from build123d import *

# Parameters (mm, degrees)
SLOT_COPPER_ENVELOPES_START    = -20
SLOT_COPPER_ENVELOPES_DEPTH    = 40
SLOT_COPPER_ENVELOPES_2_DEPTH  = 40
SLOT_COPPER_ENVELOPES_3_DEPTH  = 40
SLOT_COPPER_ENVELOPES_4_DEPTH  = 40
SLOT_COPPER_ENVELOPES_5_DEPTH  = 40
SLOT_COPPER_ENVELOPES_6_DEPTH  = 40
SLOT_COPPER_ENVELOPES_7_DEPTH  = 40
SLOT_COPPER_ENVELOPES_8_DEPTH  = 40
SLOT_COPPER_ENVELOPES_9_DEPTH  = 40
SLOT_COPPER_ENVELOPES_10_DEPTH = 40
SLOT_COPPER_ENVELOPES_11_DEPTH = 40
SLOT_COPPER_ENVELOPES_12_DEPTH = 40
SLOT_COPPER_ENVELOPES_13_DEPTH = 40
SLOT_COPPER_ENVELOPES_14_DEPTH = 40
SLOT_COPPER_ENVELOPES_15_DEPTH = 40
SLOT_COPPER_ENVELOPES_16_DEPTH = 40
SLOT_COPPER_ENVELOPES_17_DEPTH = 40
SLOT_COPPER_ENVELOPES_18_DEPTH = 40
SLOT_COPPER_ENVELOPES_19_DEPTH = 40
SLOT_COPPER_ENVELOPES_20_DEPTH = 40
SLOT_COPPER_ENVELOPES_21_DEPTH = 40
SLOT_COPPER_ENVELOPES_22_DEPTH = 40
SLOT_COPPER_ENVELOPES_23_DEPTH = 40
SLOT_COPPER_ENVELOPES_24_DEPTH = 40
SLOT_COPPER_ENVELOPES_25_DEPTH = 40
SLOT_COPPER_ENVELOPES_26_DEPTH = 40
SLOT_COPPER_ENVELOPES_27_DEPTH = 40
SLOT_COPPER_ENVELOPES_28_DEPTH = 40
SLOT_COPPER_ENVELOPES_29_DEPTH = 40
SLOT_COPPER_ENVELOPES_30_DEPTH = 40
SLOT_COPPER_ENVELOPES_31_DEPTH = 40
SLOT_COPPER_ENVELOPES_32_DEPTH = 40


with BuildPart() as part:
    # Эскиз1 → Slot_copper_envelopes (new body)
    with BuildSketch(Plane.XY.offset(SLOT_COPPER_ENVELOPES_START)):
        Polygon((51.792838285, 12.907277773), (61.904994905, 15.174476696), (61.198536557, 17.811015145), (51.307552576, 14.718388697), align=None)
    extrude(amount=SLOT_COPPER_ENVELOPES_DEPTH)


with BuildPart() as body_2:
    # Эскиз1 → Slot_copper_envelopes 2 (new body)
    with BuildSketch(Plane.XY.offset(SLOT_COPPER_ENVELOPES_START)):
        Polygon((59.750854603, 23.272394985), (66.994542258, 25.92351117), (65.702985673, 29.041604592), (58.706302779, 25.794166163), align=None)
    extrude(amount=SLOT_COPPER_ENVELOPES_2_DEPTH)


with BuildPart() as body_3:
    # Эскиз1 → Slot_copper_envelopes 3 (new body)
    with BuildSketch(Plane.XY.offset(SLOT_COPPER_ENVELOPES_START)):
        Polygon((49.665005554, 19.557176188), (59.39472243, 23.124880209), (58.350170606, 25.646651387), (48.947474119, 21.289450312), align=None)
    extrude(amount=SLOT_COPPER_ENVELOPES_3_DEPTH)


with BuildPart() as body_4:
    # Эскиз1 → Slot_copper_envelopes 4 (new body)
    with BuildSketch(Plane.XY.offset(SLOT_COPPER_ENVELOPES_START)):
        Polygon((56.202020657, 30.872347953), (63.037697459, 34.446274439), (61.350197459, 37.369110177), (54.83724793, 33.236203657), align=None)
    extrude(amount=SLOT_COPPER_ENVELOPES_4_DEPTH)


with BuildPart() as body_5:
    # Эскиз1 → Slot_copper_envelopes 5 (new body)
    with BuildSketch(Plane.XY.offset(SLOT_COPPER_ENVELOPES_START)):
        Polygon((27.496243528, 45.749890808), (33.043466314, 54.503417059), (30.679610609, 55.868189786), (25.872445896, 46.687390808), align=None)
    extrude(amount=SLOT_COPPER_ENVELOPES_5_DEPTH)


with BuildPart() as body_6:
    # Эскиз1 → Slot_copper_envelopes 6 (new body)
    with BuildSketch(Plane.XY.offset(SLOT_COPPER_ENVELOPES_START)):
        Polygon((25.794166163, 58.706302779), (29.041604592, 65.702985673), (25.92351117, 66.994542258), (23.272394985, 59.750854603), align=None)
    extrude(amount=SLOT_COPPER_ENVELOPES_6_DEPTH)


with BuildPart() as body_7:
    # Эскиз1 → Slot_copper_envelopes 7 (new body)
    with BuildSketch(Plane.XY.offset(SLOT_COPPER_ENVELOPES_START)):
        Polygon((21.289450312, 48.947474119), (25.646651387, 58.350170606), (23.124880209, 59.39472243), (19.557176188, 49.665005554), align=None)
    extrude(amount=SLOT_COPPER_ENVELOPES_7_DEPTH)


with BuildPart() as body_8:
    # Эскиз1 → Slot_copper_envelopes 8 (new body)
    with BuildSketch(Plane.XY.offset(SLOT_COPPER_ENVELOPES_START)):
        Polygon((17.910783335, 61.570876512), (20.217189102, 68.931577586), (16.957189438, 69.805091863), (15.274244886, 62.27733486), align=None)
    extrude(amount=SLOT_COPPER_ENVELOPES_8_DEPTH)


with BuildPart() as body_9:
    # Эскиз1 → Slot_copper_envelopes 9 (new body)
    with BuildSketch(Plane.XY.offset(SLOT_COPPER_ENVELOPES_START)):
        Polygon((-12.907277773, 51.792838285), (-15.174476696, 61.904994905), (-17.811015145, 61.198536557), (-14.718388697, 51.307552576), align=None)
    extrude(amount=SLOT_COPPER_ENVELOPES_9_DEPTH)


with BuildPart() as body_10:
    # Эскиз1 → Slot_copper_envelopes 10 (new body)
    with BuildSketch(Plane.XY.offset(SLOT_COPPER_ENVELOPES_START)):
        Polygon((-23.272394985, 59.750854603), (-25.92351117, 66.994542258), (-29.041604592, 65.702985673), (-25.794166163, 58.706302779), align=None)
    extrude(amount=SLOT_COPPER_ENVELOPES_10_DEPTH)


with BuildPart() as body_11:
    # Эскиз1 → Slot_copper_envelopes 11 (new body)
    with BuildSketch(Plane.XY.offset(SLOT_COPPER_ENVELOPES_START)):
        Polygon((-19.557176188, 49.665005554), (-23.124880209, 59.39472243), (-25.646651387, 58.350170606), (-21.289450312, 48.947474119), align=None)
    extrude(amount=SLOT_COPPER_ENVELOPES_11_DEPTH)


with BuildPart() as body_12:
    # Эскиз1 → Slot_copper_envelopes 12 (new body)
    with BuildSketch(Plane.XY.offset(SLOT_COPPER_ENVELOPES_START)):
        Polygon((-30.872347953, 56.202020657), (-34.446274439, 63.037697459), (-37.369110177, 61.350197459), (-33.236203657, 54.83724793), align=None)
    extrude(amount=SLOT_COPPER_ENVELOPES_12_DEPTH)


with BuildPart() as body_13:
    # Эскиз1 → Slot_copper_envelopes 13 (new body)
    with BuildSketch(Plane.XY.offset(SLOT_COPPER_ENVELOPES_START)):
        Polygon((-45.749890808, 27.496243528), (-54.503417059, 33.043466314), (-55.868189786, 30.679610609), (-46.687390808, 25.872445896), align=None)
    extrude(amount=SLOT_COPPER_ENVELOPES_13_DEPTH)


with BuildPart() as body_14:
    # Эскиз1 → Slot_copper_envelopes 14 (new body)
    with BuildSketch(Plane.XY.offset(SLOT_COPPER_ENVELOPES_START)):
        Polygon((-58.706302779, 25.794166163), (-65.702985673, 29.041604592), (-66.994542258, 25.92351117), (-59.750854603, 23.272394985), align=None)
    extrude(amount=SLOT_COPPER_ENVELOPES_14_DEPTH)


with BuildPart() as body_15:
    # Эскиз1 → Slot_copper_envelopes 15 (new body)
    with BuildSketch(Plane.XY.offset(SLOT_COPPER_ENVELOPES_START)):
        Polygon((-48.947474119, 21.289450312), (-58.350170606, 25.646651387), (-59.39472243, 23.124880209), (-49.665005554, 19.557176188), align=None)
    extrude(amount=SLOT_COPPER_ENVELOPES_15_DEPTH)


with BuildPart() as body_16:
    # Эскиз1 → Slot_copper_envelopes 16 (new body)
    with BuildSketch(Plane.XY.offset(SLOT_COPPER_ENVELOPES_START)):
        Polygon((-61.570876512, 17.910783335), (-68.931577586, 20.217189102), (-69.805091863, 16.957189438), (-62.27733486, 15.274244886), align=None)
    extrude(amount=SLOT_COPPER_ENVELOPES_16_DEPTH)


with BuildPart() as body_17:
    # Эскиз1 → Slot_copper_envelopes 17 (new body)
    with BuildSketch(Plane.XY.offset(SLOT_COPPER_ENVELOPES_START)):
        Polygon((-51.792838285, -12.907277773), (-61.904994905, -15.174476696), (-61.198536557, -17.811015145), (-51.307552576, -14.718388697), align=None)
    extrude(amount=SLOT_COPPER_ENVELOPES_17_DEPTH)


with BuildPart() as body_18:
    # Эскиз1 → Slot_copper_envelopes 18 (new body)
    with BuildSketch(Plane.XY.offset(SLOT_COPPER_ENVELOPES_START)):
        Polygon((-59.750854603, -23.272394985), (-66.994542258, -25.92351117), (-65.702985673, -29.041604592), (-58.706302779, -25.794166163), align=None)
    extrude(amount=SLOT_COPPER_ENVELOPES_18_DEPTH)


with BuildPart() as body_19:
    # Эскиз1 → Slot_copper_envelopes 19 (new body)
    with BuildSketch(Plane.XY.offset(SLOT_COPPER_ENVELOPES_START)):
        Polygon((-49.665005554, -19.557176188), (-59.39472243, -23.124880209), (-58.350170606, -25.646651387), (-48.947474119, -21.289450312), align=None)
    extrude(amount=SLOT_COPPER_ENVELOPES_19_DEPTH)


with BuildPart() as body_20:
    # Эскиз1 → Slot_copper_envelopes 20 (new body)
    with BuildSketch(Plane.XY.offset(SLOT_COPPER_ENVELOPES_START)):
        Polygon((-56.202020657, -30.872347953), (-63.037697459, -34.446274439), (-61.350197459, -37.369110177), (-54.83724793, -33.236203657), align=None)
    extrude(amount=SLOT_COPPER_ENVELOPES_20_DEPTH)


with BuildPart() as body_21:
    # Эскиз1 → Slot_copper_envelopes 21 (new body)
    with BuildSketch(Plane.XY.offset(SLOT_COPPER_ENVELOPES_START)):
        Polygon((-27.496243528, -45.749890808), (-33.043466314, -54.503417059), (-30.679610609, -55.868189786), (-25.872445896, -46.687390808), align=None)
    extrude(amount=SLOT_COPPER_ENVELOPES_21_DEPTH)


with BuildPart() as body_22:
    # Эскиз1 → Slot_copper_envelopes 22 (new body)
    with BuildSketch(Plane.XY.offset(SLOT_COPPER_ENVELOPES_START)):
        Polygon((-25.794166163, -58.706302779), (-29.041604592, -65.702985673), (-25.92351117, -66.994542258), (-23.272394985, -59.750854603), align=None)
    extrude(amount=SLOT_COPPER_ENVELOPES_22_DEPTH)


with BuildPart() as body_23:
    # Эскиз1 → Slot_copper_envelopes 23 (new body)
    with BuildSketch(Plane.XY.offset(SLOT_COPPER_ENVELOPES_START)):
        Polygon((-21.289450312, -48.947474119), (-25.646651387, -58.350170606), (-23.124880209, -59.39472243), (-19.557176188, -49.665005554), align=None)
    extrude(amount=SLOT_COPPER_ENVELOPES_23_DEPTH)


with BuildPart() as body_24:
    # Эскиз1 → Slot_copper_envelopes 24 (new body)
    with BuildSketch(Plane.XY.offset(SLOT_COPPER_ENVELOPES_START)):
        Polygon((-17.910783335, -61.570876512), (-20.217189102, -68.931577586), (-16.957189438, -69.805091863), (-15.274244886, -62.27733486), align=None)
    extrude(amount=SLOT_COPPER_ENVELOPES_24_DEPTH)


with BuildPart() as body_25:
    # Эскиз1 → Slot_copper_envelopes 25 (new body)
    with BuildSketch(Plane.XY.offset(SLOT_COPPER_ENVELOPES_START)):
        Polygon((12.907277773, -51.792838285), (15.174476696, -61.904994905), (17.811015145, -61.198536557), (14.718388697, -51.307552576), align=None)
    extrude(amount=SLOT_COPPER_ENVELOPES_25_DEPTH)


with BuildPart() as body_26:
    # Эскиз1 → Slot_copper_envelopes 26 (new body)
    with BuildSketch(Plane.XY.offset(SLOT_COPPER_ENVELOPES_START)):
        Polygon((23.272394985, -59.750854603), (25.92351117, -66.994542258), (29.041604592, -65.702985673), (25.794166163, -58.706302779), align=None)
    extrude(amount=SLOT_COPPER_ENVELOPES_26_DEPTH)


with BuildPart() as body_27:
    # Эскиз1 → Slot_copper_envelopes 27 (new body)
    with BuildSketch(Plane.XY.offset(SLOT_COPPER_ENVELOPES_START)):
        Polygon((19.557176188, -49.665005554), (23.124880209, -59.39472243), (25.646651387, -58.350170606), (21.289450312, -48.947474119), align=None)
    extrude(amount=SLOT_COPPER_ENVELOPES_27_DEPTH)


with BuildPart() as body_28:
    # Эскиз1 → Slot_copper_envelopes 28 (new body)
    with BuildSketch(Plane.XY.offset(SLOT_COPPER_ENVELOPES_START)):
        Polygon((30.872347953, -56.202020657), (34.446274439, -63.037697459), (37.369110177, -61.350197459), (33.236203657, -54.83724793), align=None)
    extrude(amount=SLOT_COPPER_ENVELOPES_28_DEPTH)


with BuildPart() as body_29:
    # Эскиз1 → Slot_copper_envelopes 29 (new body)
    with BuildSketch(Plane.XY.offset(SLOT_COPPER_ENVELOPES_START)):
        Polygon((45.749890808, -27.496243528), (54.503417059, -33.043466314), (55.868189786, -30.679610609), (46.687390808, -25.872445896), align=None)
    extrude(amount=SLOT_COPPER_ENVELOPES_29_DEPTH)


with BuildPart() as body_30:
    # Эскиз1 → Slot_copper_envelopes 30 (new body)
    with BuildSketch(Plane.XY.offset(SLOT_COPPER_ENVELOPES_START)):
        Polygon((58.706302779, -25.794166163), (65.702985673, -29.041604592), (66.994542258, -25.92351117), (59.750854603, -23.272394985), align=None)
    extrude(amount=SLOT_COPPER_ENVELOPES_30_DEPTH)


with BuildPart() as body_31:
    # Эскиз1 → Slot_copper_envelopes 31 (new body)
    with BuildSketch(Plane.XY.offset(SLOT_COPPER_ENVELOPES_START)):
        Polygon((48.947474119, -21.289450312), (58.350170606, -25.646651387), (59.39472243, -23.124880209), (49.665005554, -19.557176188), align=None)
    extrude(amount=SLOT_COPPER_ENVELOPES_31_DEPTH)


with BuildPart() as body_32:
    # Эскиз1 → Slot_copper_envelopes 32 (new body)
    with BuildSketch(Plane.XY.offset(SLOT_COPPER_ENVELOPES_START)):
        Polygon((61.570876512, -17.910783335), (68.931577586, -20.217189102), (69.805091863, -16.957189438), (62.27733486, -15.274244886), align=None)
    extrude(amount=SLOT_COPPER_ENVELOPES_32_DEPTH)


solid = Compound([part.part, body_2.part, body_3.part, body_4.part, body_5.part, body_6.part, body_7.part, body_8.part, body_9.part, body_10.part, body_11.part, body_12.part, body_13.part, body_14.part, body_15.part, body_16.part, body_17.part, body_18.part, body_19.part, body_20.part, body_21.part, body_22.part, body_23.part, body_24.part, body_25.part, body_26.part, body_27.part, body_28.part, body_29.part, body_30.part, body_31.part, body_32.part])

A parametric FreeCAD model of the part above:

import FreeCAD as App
import Part
import Sketcher

V = App.Vector
Q = App.Units.Quantity

doc = App.newDocument("Part")
body = doc.addObject("PartDesign::Body", "Body")

# Sketch on XY plane
sketch1 = body.newObject("Sketcher::SketchObject", "Sketch")
sketch1.AttachmentSupport = (doc.getObject("XY_Plane"), [""])
sketch1.MapMode = "FlatFace"
sketch1.AttachmentOffset = App.Placement(V(0, 0, -20), App.Rotation())
sketch1.addGeometry([
    Part.LineSegment(V(51.8, 12.9, 0), V(61.9, 15.2, 0)),
    Part.LineSegment(V(61.9, 15.2, 0), V(61.2, 17.8, 0)),
    Part.LineSegment(V(61.2, 17.8, 0), V(51.3, 14.7, 0)),
    Part.LineSegment(V(51.3, 14.7, 0), V(51.8, 12.9, 0)),
], False)
sketch1.addConstraint([
    Sketcher.Constraint("Coincident", 0, 2, 1, 1),
    Sketcher.Constraint("Coincident", 1, 2, 2, 1),
    Sketcher.Constraint("Coincident", 2, 2, 3, 1),
    Sketcher.Constraint("Coincident", 3, 2, 0, 1),
    Sketcher.Constraint("Parallel", 1, 3),
    Sketcher.Constraint("Equal", 0, 2),
    Sketcher.Constraint("Angle", 1, Q("105 deg")),
    Sketcher.Constraint("Distance", 3, 1.875),
    Sketcher.Constraint("Distance", 0, 10.363199),
    Sketcher.Constraint("DistanceY", 3, 2, 0, 2, 2.267199),
    Sketcher.Constraint("DistanceY", -1, 1, 2, 2, 14.718389),
    Sketcher.Constraint("DistanceX", -1, 1, 3, 2, 51.792838),
])
pad1 = body.newObject("PartDesign::Pad", "Pad")
pad1.Profile = sketch1
pad1.Length = 40
body2 = doc.addObject("PartDesign::Body", "Body001")

# Sketch on XY plane
sketch2 = body2.newObject("Sketcher::SketchObject", "Sketch001")
sketch2.AttachmentSupport = (doc.getObject("XY_Plane001"), [""])
sketch2.MapMode = "FlatFace"
sketch2.AttachmentOffset = App.Placement(V(0, 0, -20), App.Rotation())
sketch2.addGeometry([
    Part.LineSegment(V(59.8, 23.3, 0), V(67, 25.9, 0)),
    Part.LineSegment(V(67, 25.9, 0), V(65.7, 29, 0)),
    Part.LineSegment(V(65.7, 29, 0), V(58.7, 25.8, 0)),
    Part.LineSegment(V(58.7, 25.8, 0), V(59.8, 23.3, 0)),
], False)
sketch2.addConstraint([
    Sketcher.Constraint("Coincident", 0, 2, 1, 1),
    Sketcher.Constraint("Coincident", 1, 2, 2, 1),
    Sketcher.Constraint("Coincident", 2, 2, 3, 1),
    Sketcher.Constraint("Coincident", 3, 2, 0, 1),
    Sketcher.Constraint("Parallel", 1, 3),
    Sketcher.Constraint("Equal", 0, 2),
    Sketcher.Constraint("Angle", 1, Q("112.5 deg")),
    Sketcher.Constraint("Distance", 1, 3.375),
    Sketcher.Constraint("DistanceY", -1, 1, 0, 2, 25.923511),
    Sketcher.Constraint("DistanceY", 2, 2, 1, 2, 3.247438),
    Sketcher.Constraint("DistanceX", 2, 2, 0, 2, 8.288239),
    Sketcher.Constraint("DistanceX", -1, 1, 0, 2, 66.994542),
])
pad2 = body2.newObject("PartDesign::Pad", "Pad001")
pad2.Profile = sketch2
pad2.Length = 40
body3 = doc.addObject("PartDesign::Body", "Body002")

# Sketch on XY plane
sketch3 = body3.newObject("Sketcher::SketchObject", "Sketch002")
sketch3.AttachmentSupport = (doc.getObject("XY_Plane002"), [""])
sketch3.MapMode = "FlatFace"
sketch3.AttachmentOffset = App.Placement(V(0, 0, -20), App.Rotation())
sketch3.addGeometry([
    Part.LineSegment(V(49.7, 19.6, 0), V(59.4, 23.1, 0)),
    Part.LineSegment(V(59.4, 23.1, 0), V(58.4, 25.6, 0)),
    Part.LineSegment(V(58.4, 25.6, 0), V(48.9, 21.3, 0)),
    Part.LineSegment(V(48.9, 21.3, 0), V(49.7, 19.6, 0)),
], False)
sketch3.addConstraint([
    Sketcher.Constraint("Coincident", 0, 2, 1, 1),
    Sketcher.Constraint("Coincident", 1, 2, 2, 1),
    Sketcher.Constraint("Coincident", 2, 2, 3, 1),
    Sketcher.Constraint("Coincident", 3, 2, 0, 1),
    Sketcher.Constraint("Parallel", 1, 3),
    Sketcher.Constraint("Equal", 0, 2),
    Sketcher.Constraint("Angle", 1, Q("112.5 deg")),
    Sketcher.Constraint("Distance", 3, 1.875),
    Sketcher.Constraint("Distance", 0, 10.363199),
    Sketcher.Constraint("DistanceY", 2, 2, 1, 2, 4.357201),
    Sketcher.Constraint("DistanceY", -1, 1, 0, 2, 23.12488),
    Sketcher.Constraint("DistanceX", -1, 1, 1, 2, 58.350171),
])
pad3 = body3.newObject("PartDesign::Pad", "Pad002")
pad3.Profile = sketch3
pad3.Length = 40
body4 = doc.addObject("PartDesign::Body", "Body003")

# Sketch on XY plane
sketch4 = body4.newObject("Sketcher::SketchObject", "Sketch003")
sketch4.AttachmentSupport = (doc.getObject("XY_Plane003"), [""])
sketch4.MapMode = "FlatFace"
sketch4.AttachmentOffset = App.Placement(V(0, 0, -20), App.Rotation())
sketch4.addGeometry([
    Part.LineSegment(V(56.2, 30.9, 0), V(63, 34.4, 0)),
    Part.LineSegment(V(63, 34.4, 0), V(61.4, 37.4, 0)),
    Part.LineSegment(V(61.4, 37.4, 0), V(54.8, 33.2, 0)),
    Part.LineSegment(V(54.8, 33.2, 0), V(56.2, 30.9, 0)),
], False)
sketch4.addConstraint([
    Sketcher.Constraint("Coincident", 0, 2, 1, 1),
    Sketcher.Constraint("Coincident", 1, 2, 2, 1),
    Sketcher.Constraint("Coincident", 2, 2, 3, 1),
    Sketcher.Constraint("Coincident", 3, 2, 0, 1),
    Sketcher.Constraint("Parallel", 1, 3),
    Sketcher.Constraint("Equal", 0, 2),
    Sketcher.Constraint("Angle", 1, Q("120 deg")),
    Sketcher.Constraint("Distance", 1, 3.375),
    Sketcher.Constraint("DistanceY", -1, 1, 1, 2, 37.36911),
    Sketcher.Constraint("DistanceX", -1, 1, 3, 2, 56.202021),
    Sketcher.Constraint("DistanceX", 2, 2, 1, 2, 6.51295),
    Sketcher.Constraint("DistanceY", 2, 2, 0, 2, 1.210071),
])
pad4 = body4.newObject("PartDesign::Pad", "Pad003")
pad4.Profile = sketch4
pad4.Length = 40
body5 = doc.addObject("PartDesign::Body", "Body004")

# Sketch on XY plane
sketch5 = body5.newObject("Sketcher::SketchObject", "Sketch004")
sketch5.AttachmentSupport = (doc.getObject("XY_Plane004"), [""])
sketch5.MapMode = "FlatFace"
sketch5.AttachmentOffset = App.Placement(V(0, 0, -20), App.Rotation())
sketch5.addGeometry([
    Part.LineSegment(V(27.5, 45.7, 0), V(33, 54.5, 0)),
    Part.LineSegment(V(33, 54.5, 0), V(30.7, 55.9, 0)),
    Part.LineSegment(V(30.7, 55.9, 0), V(25.9, 46.7, 0)),
    Part.LineSegment(V(25.9, 46.7, 0), V(27.5, 45.7, 0)),
], False)
sketch5.addConstraint([
    Sketcher.Constraint("Coincident", 0, 2, 1, 1),
    Sketcher.Constraint("Coincident", 1, 2, 2, 1),
    Sketcher.Constraint("Coincident", 2, 2, 3, 1),
    Sketcher.Constraint("Coincident", 3, 2, 0, 1),
    Sketcher.Constraint("Parallel", 1, 3),
    Sketcher.Constraint("Equal", 0, 2),
    Sketcher.Constraint("Angle", 1, Q("150 deg")),
    Sketcher.Constraint("Distance", 3, 1.875),
    Sketcher.Constraint("Distance", 0, 10.363199),
    Sketcher.Constraint("DistanceY", 2, 2, 1, 2, 9.180799),
    Sketcher.Constraint("DistanceX", -1, 1, 1, 2, 30.679611),
    Sketcher.Constraint("DistanceY", -1, 1, 1, 2, 55.86819),
])
pad5 = body5.newObject("PartDesign::Pad", "Pad004")
pad5.Profile = sketch5
pad5.Length = 40
body6 = doc.addObject("PartDesign::Body", "Body005")

# Sketch on XY plane
sketch6 = body6.newObject("Sketcher::SketchObject", "Sketch005")
sketch6.AttachmentSupport = (doc.getObject("XY_Plane005"), [""])
sketch6.MapMode = "FlatFace"
sketch6.AttachmentOffset = App.Placement(V(0, 0, -20), App.Rotation())
sketch6.addGeometry([
    Part.LineSegment(V(25.8, 58.7, 0), V(29, 65.7, 0)),
    Part.LineSegment(V(29, 65.7, 0), V(25.9, 67, 0)),
    Part.LineSegment(V(25.9, 67, 0), V(23.3, 59.8, 0)),
    Part.LineSegment(V(23.3, 59.8, 0), V(25.8, 58.7, 0)),
], False)
sketch6.addConstraint([
    Sketcher.Constraint("Coincident", 0, 2, 1, 1),
    Sketcher.Constraint("Coincident", 1, 2, 2, 1),
    Sketcher.Constraint("Coincident", 2, 2, 3, 1),
    Sketcher.Constraint("Coincident", 3, 2, 0, 1),
    Sketcher.Constraint("Parallel", 1, 3),
    Sketcher.Constraint("Equal", 0, 2),
    Sketcher.Constraint("Angle", 1, Q("157.5 deg")),
    Sketcher.Constraint("Distance", 1, 3.375),
    Sketcher.Constraint("DistanceX", -1, 1, 1, 2, 25.923511),
    Sketcher.Constraint("DistanceX", 2, 2, 0, 2, 5.76921),
    Sketcher.Constraint("DistanceY", 2, 2, 0, 2, 5.952131),
    Sketcher.Constraint("DistanceY", -1, 1, 0, 2, 65.702986),
])
pad6 = body6.newObject("PartDesign::Pad", "Pad005")
pad6.Profile = sketch6
pad6.Length = 40
body7 = doc.addObject("PartDesign::Body", "Body006")

# Sketch on XY plane
sketch7 = body7.newObject("Sketcher::SketchObject", "Sketch006")
sketch7.AttachmentSupport = (doc.getObject("XY_Plane006"), [""])
sketch7.MapMode = "FlatFace"
sketch7.AttachmentOffset = App.Placement(V(0, 0, -20), App.Rotation())
sketch7.addGeometry([
    Part.LineSegment(V(21.3, 48.9, 0), V(25.6, 58.4, 0)),
    Part.LineSegment(V(25.6, 58.4, 0), V(23.1, 59.4, 0)),
    Part.LineSegment(V(23.1, 59.4, 0), V(19.6, 49.7, 0)),
    Part.LineSegment(V(19.6, 49.7, 0), V(21.3, 48.9, 0)),
], False)
sketch7.addConstraint([
    Sketcher.Constraint("Coincident", 0, 2, 1, 1),
    Sketcher.Constraint("Coincident", 1, 2, 2, 1),
    Sketcher.Constraint("Coincident", 2, 2, 3, 1),
    Sketcher.Constraint("Coincident", 3, 2, 0, 1),
    Sketcher.Constraint("Parallel", 1, 3),
    Sketcher.Constraint("Equal", 0, 2),
    Sketcher.Constraint("Angle", 1, Q("157.5 deg")),
    Sketcher.Constraint("Distance", 3, 1.875),
    Sketcher.Constraint("Distance", 0, 10.363199),
    Sketcher.Constraint("DistanceX", 3, 2, 0, 2, 4.357201),
    Sketcher.Constraint("DistanceX", -1, 1, 0, 2, 25.646651),
    Sketcher.Constraint("DistanceY", -1, 1, 0, 2, 58.350171),
])
pad7 = body7.newObject("PartDesign::Pad", "Pad006")
pad7.Profile = sketch7
pad7.Length = 40
body8 = doc.addObject("PartDesign::Body", "Body007")

# Sketch on XY plane
sketch8 = body8.newObject("Sketcher::SketchObject", "Sketch007")
sketch8.AttachmentSupport = (doc.getObject("XY_Plane007"), [""])
sketch8.MapMode = "FlatFace"
sketch8.AttachmentOffset = App.Placement(V(0, 0, -20), App.Rotation())
sketch8.addGeometry([
    Part.LineSegment(V(17.9, 61.6, 0), V(20.2, 68.9, 0)),
    Part.LineSegment(V(20.2, 68.9, 0), V(17, 69.8, 0)),
    Part.LineSegment(V(17, 69.8, 0), V(15.3, 62.3, 0)),
    Part.LineSegment(V(15.3, 62.3, 0), V(17.9, 61.6, 0)),
], False)
sketch8.addConstraint([
    Sketcher.Constraint("Coincident", 0, 2, 1, 1),
    Sketcher.Constraint("Coincident", 1, 2, 2, 1),
    Sketcher.Constraint("Coincident", 2, 2, 3, 1),
    Sketcher.Constraint("Coincident", 3, 2, 0, 1),
    Sketcher.Constraint("Parallel", 1, 3),
    Sketcher.Constraint("Equal", 0, 2),
    Sketcher.Constraint("Angle", 1, Q("165 deg")),
    Sketcher.Constraint("DistanceX", 1, 2, 0, 2, 3.26),
    Sketcher.Constraint("DistanceY", 3, 2, 0, 2, 7.360701),
    Sketcher.Constraint("DistanceX", -1, 1, 0, 2, 20.217189),
    Sketcher.Constraint("DistanceY", -1, 1, 1, 2, 69.805092),
    Sketcher.Constraint("DistanceX", 2, 2, 3, 2, 2.636538),
])
pad8 = body8.newObject("PartDesign::Pad", "Pad007")
pad8.Profile = sketch8
pad8.Length = 40
body9 = doc.addObject("PartDesign::Body", "Body008")

# Sketch on XY plane
sketch9 = body9.newObject("Sketcher::SketchObject", "Sketch008")
sketch9.AttachmentSupport = (doc.getObject("XY_Plane008"), [""])
sketch9.MapMode = "FlatFace"
sketch9.AttachmentOffset = App.Placement(V(0, 0, -20), App.Rotation())
sketch9.addGeometry([
    Part.LineSegment(V(-12.9, 51.8, 0), V(-15.2, 61.9, 0)),
    Part.LineSegment(V(-15.2, 61.9, 0), V(-17.8, 61.2, 0)),
    Part.LineSegment(V(-17.8, 61.2, 0), V(-14.7, 51.3, 0)),
    Part.LineSegment(V(-14.7, 51.3, 0), V(-12.9, 51.8, 0)),
], False)
sketch9.addConstraint([
    Sketcher.Constraint("Coincident", 0, 2, 1, 1),
    Sketcher.Constraint("Coincident", 1, 2, 2, 1),
    Sketcher.Constraint("Coincident", 2, 2, 3, 1),
    Sketcher.Constraint("Coincident", 3, 2, 0, 1),
    Sketcher.Constraint("Parallel", 1, 3),
    Sketcher.Constraint("Equal", 0, 2),
    Sketcher.Constraint("Angle", 1, Q("-165 deg")),
    Sketcher.Constraint("Distance", 3, 1.875),
    Sketcher.Constraint("Distance", 0, 10.363199),
    Sketcher.Constraint("DistanceX", 0, 2, 3, 2, 2.267199),
    Sketcher.Constraint("DistanceX", 2, 2, -1, 1, 14.718389),
    Sketcher.Constraint("DistanceY", -1, 1, 3, 2, 51.792838),
])
pad9 = body9.newObject("PartDesign::Pad", "Pad008")
pad9.Profile = sketch9
pad9.Length = 40
body10 = doc.addObject("PartDesign::Body", "Body009")

# Sketch on XY plane
sketch10 = body10.newObject("Sketcher::SketchObject", "Sketch009")
sketch10.AttachmentSupport = (doc.getObject("XY_Plane009"), [""])
sketch10.MapMode = "FlatFace"
sketch10.AttachmentOffset = App.Placement(V(0, 0, -20), App.Rotation())
sketch10.addGeometry([
    Part.LineSegment(V(-23.3, 59.8, 0), V(-25.9, 67, 0)),
    Part.LineSegment(V(-25.9, 67, 0), V(-29, 65.7, 0)),
    Part.LineSegment(V(-29, 65.7, 0), V(-25.8, 58.7, 0)),
    Part.LineSegment(V(-25.8, 58.7, 0), V(-23.3, 59.8, 0)),
], False)
sketch10.addConstraint([
    Sketcher.Constraint("Coincident", 0, 2, 1, 1),
    Sketcher.Constraint("Coincident", 1, 2, 2, 1),
    Sketcher.Constraint("Coincident", 2, 2, 3, 1),
    Sketcher.Constraint("Coincident", 3, 2, 0, 1),
    Sketcher.Constraint("Parallel", 1, 3),
    Sketcher.Constraint("Equal", 0, 2),
    Sketcher.Constraint("Angle", 1, Q("-157.5 deg")),
    Sketcher.Constraint("Distance", 1, 3.375),
    Sketcher.Constraint("DistanceX", 0, 2, -1, 1, 25.923511),
    Sketcher.Constraint("DistanceX", 1, 2, 2, 2, 3.247438),
    Sketcher.Constraint("DistanceY", 2, 2, 0, 2, 8.288239),
    Sketcher.Constraint("DistanceY", -1, 1, 0, 2, 66.994542),
])
pad10 = body10.newObject("PartDesign::Pad", "Pad009")
pad10.Profile = sketch10
pad10.Length = 40
body11 = doc.addObject("PartDesign::Body", "Body010")

# Sketch on XY plane
sketch11 = body11.newObject("Sketcher::SketchObject", "Sketch010")
sketch11.AttachmentSupport = (doc.getObject("XY_Plane010"), [""])
sketch11.MapMode = "FlatFace"
sketch11.AttachmentOffset = App.Placement(V(0, 0, -20), App.Rotation())
sketch11.addGeometry([
    Part.LineSegment(V(-19.6, 49.7, 0), V(-23.1, 59.4, 0)),
    Part.LineSegment(V(-23.1, 59.4, 0), V(-25.6, 58.4, 0)),
    Part.LineSegment(V(-25.6, 58.4, 0), V(-21.3, 48.9, 0)),
    Part.LineSegment(V(-21.3, 48.9, 0), V(-19.6, 49.7, 0)),
], False)
sketch11.addConstraint([
    Sketcher.Constraint("Coincident", 0, 2, 1, 1),
    Sketcher.Constraint("Coincident", 1, 2, 2, 1),
    Sketcher.Constraint("Coincident", 2, 2, 3, 1),
    Sketcher.Constraint("Coincident", 3, 2, 0, 1),
    Sketcher.Constraint("Parallel", 1, 3),
    Sketcher.Constraint("Equal", 0, 2),
    Sketcher.Constraint("Angle", 1, Q("-157.5 deg")),
    Sketcher.Constraint("Distance", 3, 1.875),
    Sketcher.Constraint("Distance", 0, 10.363199),
    Sketcher.Constraint("DistanceX", 1, 2, 2, 2, 4.357201),
    Sketcher.Constraint("DistanceX", 0, 2, -1, 1, 23.12488),
    Sketcher.Constraint("DistanceY", -1, 1, 1, 2, 58.350171),
])
pad11 = body11.newObject("PartDesign::Pad", "Pad010")
pad11.Profile = sketch11
pad11.Length = 40
body12 = doc.addObject("PartDesign::Body", "Body011")

# Sketch on XY plane
sketch12 = body12.newObject("Sketcher::SketchObject", "Sketch011")
sketch12.AttachmentSupport = (doc.getObject("XY_Plane011"), [""])
sketch12.MapMode = "FlatFace"
sketch12.AttachmentOffset = App.Placement(V(0, 0, -20), App.Rotation())
sketch12.addGeometry([
    Part.LineSegment(V(-30.9, 56.2, 0), V(-34.4, 63, 0)),
    Part.LineSegment(V(-34.4, 63, 0), V(-37.4, 61.4, 0)),
    Part.LineSegment(V(-37.4, 61.4, 0), V(-33.2, 54.8, 0)),
    Part.LineSegment(V(-33.2, 54.8, 0), V(-30.9, 56.2, 0)),
], False)
sketch12.addConstraint([
    Sketcher.Constraint("Coincident", 0, 2, 1, 1),
    Sketcher.Constraint("Coincident", 1, 2, 2, 1),
    Sketcher.Constraint("Coincident", 2, 2, 3, 1),
    Sketcher.Constraint("Coincident", 3, 2, 0, 1),
    Sketcher.Constraint("Parallel", 1, 3),
    Sketcher.Constraint("Equal", 0, 2),
    Sketcher.Constraint("Angle", 1, Q("-150 deg")),
    Sketcher.Constraint("Distance", 1, 3.375),
    Sketcher.Constraint("DistanceX", 1, 2, -1, 1, 37.36911),
    Sketcher.Constraint("DistanceY", -1, 1, 3, 2, 56.202021),
    Sketcher.Constraint("DistanceY", 2, 2, 1, 2, 6.51295),
    Sketcher.Constraint("DistanceX", 0, 2, 2, 2, 1.210071),
])
pad12 = body12.newObject("PartDesign::Pad", "Pad011")
pad12.Profile = sketch12
pad12.Length = 40
body13 = doc.addObject("PartDesign::Body", "Body012")

# Sketch on XY plane
sketch13 = body13.newObject("Sketcher::SketchObject", "Sketch012")
sketch13.AttachmentSupport = (doc.getObject("XY_Plane012"), [""])
sketch13.MapMode = "FlatFace"
sketch13.AttachmentOffset = App.Placement(V(0, 0, -20), App.Rotation())
sketch13.addGeometry([
    Part.LineSegment(V(-45.7, 27.5, 0), V(-54.5, 33, 0)),
    Part.LineSegment(V(-54.5, 33, 0), V(-55.9, 30.7, 0)),
    Part.LineSegment(V(-55.9, 30.7, 0), V(-46.7, 25.9, 0)),
    Part.LineSegment(V(-46.7, 25.9, 0), V(-45.7, 27.5, 0)),
], False)
sketch13.addConstraint([
    Sketcher.Constraint("Coincident", 0, 2, 1, 1),
    Sketcher.Constraint("Coincident", 1, 2, 2, 1),
    Sketcher.Constraint("Coincident", 2, 2, 3, 1),
    Sketcher.Constraint("Coincident", 3, 2, 0, 1),
    Sketcher.Constraint("Parallel", 1, 3),
    Sketcher.Constraint("Equal", 0, 2),
    Sketcher.Constraint("Angle", 1, Q("-120 deg")),
    Sketcher.Constraint("Distance", 3, 1.875),
    Sketcher.Constraint("Distance", 0, 10.363199),
    Sketcher.Constraint("DistanceX", 1, 2, 2, 2, 9.180799),
    Sketcher.Constraint("DistanceX", 1, 2, -1, 1, 55.86819),
    Sketcher.Constraint("DistanceY", -1, 1, 1, 2, 30.679611),
])
pad13 = body13.newObject("PartDesign::Pad", "Pad012")
pad13.Profile = sketch13
pad13.Length = 40
body14 = doc.addObject("PartDesign::Body", "Body013")

# Sketch on XY plane
sketch14 = body14.newObject("Sketcher::SketchObject", "Sketch013")
sketch14.AttachmentSupport = (doc.getObject("XY_Plane013"), [""])
sketch14.MapMode = "FlatFace"
sketch14.AttachmentOffset = App.Placement(V(0, 0, -20), App.Rotation())
sketch14.addGeometry([
    Part.LineSegment(V(-58.7, 25.8, 0), V(-65.7, 29, 0)),
    Part.LineSegment(V(-65.7, 29, 0), V(-67, 25.9, 0)),
    Part.LineSegment(V(-67, 25.9, 0), V(-59.8, 23.3, 0)),
    Part.LineSegment(V(-59.8, 23.3, 0), V(-58.7, 25.8, 0)),
], False)
sketch14.addConstraint([
    Sketcher.Constraint("Coincident", 0, 2, 1, 1),
    Sketcher.Constraint("Coincident", 1, 2, 2, 1),
    Sketcher.Constraint("Coincident", 2, 2, 3, 1),
    Sketcher.Constraint("Coincident", 3, 2, 0, 1),
    Sketcher.Constraint("Parallel", 1, 3),
    Sketcher.Constraint("Equal", 0, 2),
    Sketcher.Constraint("Angle", 1, Q("-112.5 deg")),
    Sketcher.Constraint("Distance", 1, 3.375),
    Sketcher.Constraint("DistanceY", -1, 1, 1, 2, 25.923511),
    Sketcher.Constraint("DistanceX", 0, 2, 2, 2, 5.952131),
    Sketcher.Constraint("DistanceY", 2, 2, 0, 2, 5.76921),
    Sketcher.Constraint("DistanceX", 0, 2, -1, 1, 65.702986),
])
pad14 = body14.newObject("PartDesign::Pad", "Pad013")
pad14.Profile = sketch14
pad14.Length = 40
body15 = doc.addObject("PartDesign::Body", "Body014")

# Sketch on XY plane
sketch15 = body15.newObject("Sketcher::SketchObject", "Sketch014")
sketch15.AttachmentSupport = (doc.getObject("XY_Plane014"), [""])
sketch15.MapMode = "FlatFace"
sketch15.AttachmentOffset = App.Placement(V(0, 0, -20), App.Rotation())
sketch15.addGeometry([
    Part.LineSegment(V(-48.9, 21.3, 0), V(-58.4, 25.6, 0)),
    Part.LineSegment(V(-58.4, 25.6, 0), V(-59.4, 23.1, 0)),
    Part.LineSegment(V(-59.4, 23.1, 0), V(-49.7, 19.6, 0)),
    Part.LineSegment(V(-49.7, 19.6, 0), V(-48.9, 21.3, 0)),
], False)
sketch15.addConstraint([
    Sketcher.Constraint("Coincident", 0, 2, 1, 1),
    Sketcher.Constraint("Coincident", 1, 2, 2, 1),
    Sketcher.Constraint("Coincident", 2, 2, 3, 1),
    Sketcher.Constraint("Coincident", 3, 2, 0, 1),
    Sketcher.Constraint("Parallel", 1, 3),
    Sketcher.Constraint("Equal", 0, 2),
    Sketcher.Constraint("Angle", 1, Q("-112.5 deg")),
    Sketcher.Constraint("Distance", 3, 1.875),
    Sketcher.Constraint("Distance", 0, 10.363199),
    Sketcher.Constraint("DistanceY", 3, 2, 0, 2, 4.357201),
    Sketcher.Constraint("DistanceX", 0, 2, -1, 1, 58.350171),
    Sketcher.Constraint("DistanceY", -1, 1, 0, 2, 25.646651),
])
pad15 = body15.newObject("PartDesign::Pad", "Pad014")
pad15.Profile = sketch15
pad15.Length = 40
body16 = doc.addObject("PartDesign::Body", "Body015")

# Sketch on XY plane
sketch16 = body16.newObject("Sketcher::SketchObject", "Sketch015")
sketch16.AttachmentSupport = (doc.getObject("XY_Plane015"), [""])
sketch16.MapMode = "FlatFace"
sketch16.AttachmentOffset = App.Placement(V(0, 0, -20), App.Rotation())
sketch16.addGeometry([
    Part.LineSegment(V(-61.6, 17.9, 0), V(-68.9, 20.2, 0)),
    Part.LineSegment(V(-68.9, 20.2, 0), V(-69.8, 17, 0)),
    Part.LineSegment(V(-69.8, 17, 0), V(-62.3, 15.3, 0)),
    Part.LineSegment(V(-62.3, 15.3, 0), V(-61.6, 17.9, 0)),
], False)
sketch16.addConstraint([
    Sketcher.Constraint("Coincident", 0, 2, 1, 1),
    Sketcher.Constraint("Coincident", 1, 2, 2, 1),
    Sketcher.Constraint("Coincident", 2, 2, 3, 1),
    Sketcher.Constraint("Coincident", 3, 2, 0, 1),
    Sketcher.Constraint("Parallel", 1, 3),
    Sketcher.Constraint("Equal", 0, 2),
    Sketcher.Constraint("Angle", 1, Q("-105 deg")),
    Sketcher.Constraint("DistanceY", 1, 2, 0, 2, 3.26),
    Sketcher.Constraint("DistanceX", 0, 2, 3, 2, 7.360701),
    Sketcher.Constraint("DistanceY", -1, 1, 0, 2, 20.217189),
    Sketcher.Constraint("DistanceX", 1, 2, -1, 1, 69.805092),
    Sketcher.Constraint("DistanceX", 2, 2, 3, 2, 0.706458),
])
pad16 = body16.newObject("PartDesign::Pad", "Pad015")
pad16.Profile = sketch16
pad16.Length = 40
body17 = doc.addObject("PartDesign::Body", "Body016")

# Sketch on XY plane
sketch17 = body17.newObject("Sketcher::SketchObject", "Sketch016")
sketch17.AttachmentSupport = (doc.getObject("XY_Plane016"), [""])
sketch17.MapMode = "FlatFace"
sketch17.AttachmentOffset = App.Placement(V(0, 0, -20), App.Rotation())
sketch17.addGeometry([
    Part.LineSegment(V(-51.8, -12.9, 0), V(-61.9, -15.2, 0)),
    Part.LineSegment(V(-61.9, -15.2, 0), V(-61.2, -17.8, 0)),
    Part.LineSegment(V(-61.2, -17.8, 0), V(-51.3, -14.7, 0)),
    Part.LineSegment(V(-51.3, -14.7, 0), V(-51.8, -12.9, 0)),
], False)
sketch17.addConstraint([
    Sketcher.Constraint("Coincident", 0, 2, 1, 1),
    Sketcher.Constraint("Coincident", 1, 2, 2, 1),
    Sketcher.Constraint("Coincident", 2, 2, 3, 1),
    Sketcher.Constraint("Coincident", 3, 2, 0, 1),
    Sketcher.Constraint("Parallel", 1, 3),
    Sketcher.Constraint("Equal", 0, 2),
    Sketcher.Constraint("Angle", 1, Q("-75 deg")),
    Sketcher.Constraint("Distance", 3, 1.875),
    Sketcher.Constraint("Distance", 0, 10.363199),
    Sketcher.Constraint("DistanceY", 0, 2, 3, 2, 2.267199),
    Sketcher.Constraint("DistanceY", 2, 2, -1, 1, 14.718389),
    Sketcher.Constraint("DistanceX", 3, 2, -1, 1, 51.792838),
])
pad17 = body17.newObject("PartDesign::Pad", "Pad016")
pad17.Profile = sketch17
pad17.Length = 40
body18 = doc.addObject("PartDesign::Body", "Body017")

# Sketch on XY plane
sketch18 = body18.newObject("Sketcher::SketchObject", "Sketch017")
sketch18.AttachmentSupport = (doc.getObject("XY_Plane017"), [""])
sketch18.MapMode = "FlatFace"
sketch18.AttachmentOffset = App.Placement(V(0, 0, -20), App.Rotation())
sketch18.addGeometry([
    Part.LineSegment(V(-59.8, -23.3, 0), V(-67, -25.9, 0)),
    Part.LineSegment(V(-67, -25.9, 0), V(-65.7, -29, 0)),
    Part.LineSegment(V(-65.7, -29, 0), V(-58.7, -25.8, 0)),
    Part.LineSegment(V(-58.7, -25.8, 0), V(-59.8, -23.3, 0)),
], False)
sketch18.addConstraint([
    Sketcher.Constraint("Coincident", 0, 2, 1, 1),
    Sketcher.Constraint("Coincident", 1, 2, 2, 1),
    Sketcher.Constraint("Coincident", 2, 2, 3, 1),
    Sketcher.Constraint("Coincident", 3, 2, 0, 1),
    Sketcher.Constraint("Parallel", 1, 3),
    Sketcher.Constraint("Equal", 0, 2),
    Sketcher.Constraint("Angle", 1, Q("-67.5 deg")),
    Sketcher.Constraint("Distance", 1, 3.375),
    Sketcher.Constraint("DistanceY", 0, 2, -1, 1, 25.923511),
    Sketcher.Constraint("DistanceY", 1, 2, 2, 2, 3.247438),
    Sketcher.Constraint("DistanceX", 0, 2, 2, 2, 8.288239),
    Sketcher.Constraint("DistanceX", 0, 2, -1, 1, 66.994542),
])
pad18 = body18.newObject("PartDesign::Pad", "Pad017")
pad18.Profile = sketch18
pad18.Length = 40
body19 = doc.addObject("PartDesign::Body", "Body018")

# Sketch on XY plane
sketch19 = body19.newObject("Sketcher::SketchObject", "Sketch018")
sketch19.AttachmentSupport = (doc.getObject("XY_Plane018"), [""])
sketch19.MapMode = "FlatFace"
sketch19.AttachmentOffset = App.Placement(V(0, 0, -20), App.Rotation())
sketch19.addGeometry([
    Part.LineSegment(V(-49.7, -19.6, 0), V(-59.4, -23.1, 0)),
    Part.LineSegment(V(-59.4, -23.1, 0), V(-58.4, -25.6, 0)),
    Part.LineSegment(V(-58.4, -25.6, 0), V(-48.9, -21.3, 0)),
    Part.LineSegment(V(-48.9, -21.3, 0), V(-49.7, -19.6, 0)),
], False)
sketch19.addConstraint([
    Sketcher.Constraint("Coincident", 0, 2, 1, 1),
    Sketcher.Constraint("Coincident", 1, 2, 2, 1),
    Sketcher.Constraint("Coincident", 2, 2, 3, 1),
    Sketcher.Constraint("Coincident", 3, 2, 0, 1),
    Sketcher.Constraint("Parallel", 1, 3),
    Sketcher.Constraint("Equal", 0, 2),
    Sketcher.Constraint("Angle", 1, Q("-67.5 deg")),
    Sketcher.Constraint("Distance", 3, 1.875),
    Sketcher.Constraint("Distance", 0, 10.363199),
    Sketcher.Constraint("DistanceY", 1, 2, 2, 2, 4.357201),
    Sketcher.Constraint("DistanceY", 0, 2, -1, 1, 23.12488),
    Sketcher.Constraint("DistanceX", 1, 2, -1, 1, 58.350171),
])
pad19 = body19.newObject("PartDesign::Pad", "Pad018")
pad19.Profile = sketch19
pad19.Length = 40
body20 = doc.addObject("PartDesign::Body", "Body019")

# Sketch on XY plane
sketch20 = body20.newObject("Sketcher::SketchObject", "Sketch019")
sketch20.AttachmentSupport = (doc.getObject("XY_Plane019"), [""])
sketch20.MapMode = "FlatFace"
sketch20.AttachmentOffset = App.Placement(V(0, 0, -20), App.Rotation())
sketch20.addGeometry([
    Part.LineSegment(V(-56.2, -30.9, 0), V(-63, -34.4, 0)),
    Part.LineSegment(V(-63, -34.4, 0), V(-61.4, -37.4, 0)),
    Part.LineSegment(V(-61.4, -37.4, 0), V(-54.8, -33.2, 0)),
    Part.LineSegment(V(-54.8, -33.2, 0), V(-56.2, -30.9, 0)),
], False)
sketch20.addConstraint([
    Sketcher.Constraint("Coincident", 0, 2, 1, 1),
    Sketcher.Constraint("Coincident", 1, 2, 2, 1),
    Sketcher.Constraint("Coincident", 2, 2, 3, 1),
    Sketcher.Constraint("Coincident", 3, 2, 0, 1),
    Sketcher.Constraint("Parallel", 1, 3),
    Sketcher.Constraint("Equal", 0, 2),
    Sketcher.Constraint("Angle", 1, Q("-60 deg")),
    Sketcher.Constraint("Distance", 1, 3.375),
    Sketcher.Constraint("DistanceY", 1, 2, -1, 1, 37.36911),
    Sketcher.Constraint("DistanceX", 3, 2, -1, 1, 56.202021),
    Sketcher.Constraint("DistanceX", 1, 2, 2, 2, 6.51295),
    Sketcher.Constraint("DistanceY", 0, 2, 2, 2, 1.210071),
])
pad20 = body20.newObject("PartDesign::Pad", "Pad019")
pad20.Profile = sketch20
pad20.Length = 40
body21 = doc.addObject("PartDesign::Body", "Body020")

# Sketch on XY plane
sketch21 = body21.newObject("Sketcher::SketchObject", "Sketch020")
sketch21.AttachmentSupport = (doc.getObject("XY_Plane020"), [""])
sketch21.MapMode = "FlatFace"
sketch21.AttachmentOffset = App.Placement(V(0, 0, -20), App.Rotation())
sketch21.addGeometry([
    Part.LineSegment(V(-27.5, -45.7, 0), V(-33, -54.5, 0)),
    Part.LineSegment(V(-33, -54.5, 0), V(-30.7, -55.9, 0)),
    Part.LineSegment(V(-30.7, -55.9, 0), V(-25.9, -46.7, 0)),
    Part.LineSegment(V(-25.9, -46.7, 0), V(-27.5, -45.7, 0)),
], False)
sketch21.addConstraint([
    Sketcher.Constraint("Coincident", 0, 2, 1, 1),
    Sketcher.Constraint("Coincident", 1, 2, 2, 1),
    Sketcher.Constraint("Coincident", 2, 2, 3, 1),
    Sketcher.Constraint("Coincident", 3, 2, 0, 1),
    Sketcher.Constraint("Parallel", 1, 3),
    Sketcher.Constraint("Equal", 0, 2),
    Sketcher.Constraint("Angle", 1, Q("-30 deg")),
    Sketcher.Constraint("Distance", 3, 1.875),
    Sketcher.Constraint("Distance", 0, 10.363199),
    Sketcher.Constraint("DistanceY", 1, 2, 2, 2, 9.180799),
    Sketcher.Constraint("DistanceX", 1, 2, -1, 1, 30.679611),
    Sketcher.Constraint("DistanceY", 1, 2, -1, 1, 55.86819),
])
pad21 = body21.newObject("PartDesign::Pad", "Pad020")
pad21.Profile = sketch21
pad21.Length = 40
body22 = doc.addObject("PartDesign::Body", "Body021")

# Sketch on XY plane
sketch22 = body22.newObject("Sketcher::SketchObject", "Sketch021")
sketch22.AttachmentSupport = (doc.getObject("XY_Plane021"), [""])
sketch22.MapMode = "FlatFace"
sketch22.AttachmentOffset = App.Placement(V(0, 0, -20), App.Rotation())
sketch22.addGeometry([
    Part.LineSegment(V(-25.8, -58.7, 0), V(-29, -65.7, 0)),
    Part.LineSegment(V(-29, -65.7, 0), V(-25.9, -67, 0)),
    Part.LineSegment(V(-25.9, -67, 0), V(-23.3, -59.8, 0)),
    Part.LineSegment(V(-23.3, -59.8, 0), V(-25.8, -58.7, 0)),
], False)
sketch22.addConstraint([
    Sketcher.Constraint("Coincident", 0, 2, 1, 1),
    Sketcher.Constraint("Coincident", 1, 2, 2, 1),
    Sketcher.Constraint("Coincident", 2, 2, 3, 1),
    Sketcher.Constraint("Coincident", 3, 2, 0, 1),
    Sketcher.Constraint("Parallel", 1, 3),
    Sketcher.Constraint("Equal", 0, 2),
    Sketcher.Constraint("Angle", 1, Q("-22.5 deg")),
    Sketcher.Constraint("Distance", 1, 3.375),
    Sketcher.Constraint("DistanceX", 1, 2, -1, 1, 25.923511),
    Sketcher.Constraint("DistanceX", 0, 2, 2, 2, 5.76921),
    Sketcher.Constraint("DistanceY", 0, 2, 2, 2, 5.952131),
    Sketcher.Constraint("DistanceY", 0, 2, -1, 1, 65.702986),
])
pad22 = body22.newObject("PartDesign::Pad", "Pad021")
pad22.Profile = sketch22
pad22.Length = 40
body23 = doc.addObject("PartDesign::Body", "Body022")

# Sketch on XY plane
sketch23 = body23.newObject("Sketcher::SketchObject", "Sketch022")
sketch23.AttachmentSupport = (doc.getObject("XY_Plane022"), [""])
sketch23.MapMode = "FlatFace"
sketch23.AttachmentOffset = App.Placement(V(0, 0, -20), App.Rotation())
sketch23.addGeometry([
    Part.LineSegment(V(-21.3, -48.9, 0), V(-25.6, -58.4, 0)),
    Part.LineSegment(V(-25.6, -58.4, 0), V(-23.1, -59.4, 0)),
    Part.LineSegment(V(-23.1, -59.4, 0), V(-19.6, -49.7, 0)),
    Part.LineSegment(V(-19.6, -49.7, 0), V(-21.3, -48.9, 0)),
], False)
sketch23.addConstraint([
    Sketcher.Constraint("Coincident", 0, 2, 1, 1),
    Sketcher.Constraint("Coincident", 1, 2, 2, 1),
    Sketcher.Constraint("Coincident", 2, 2, 3, 1),
    Sketcher.Constraint("Coincident", 3, 2, 0, 1),
    Sketcher.Constraint("Parallel", 1, 3),
    Sketcher.Constraint("Equal", 0, 2),
    Sketcher.Constraint("Angle", 1, Q("-22.5 deg")),
    Sketcher.Constraint("Distance", 3, 1.875),
    Sketcher.Constraint("Distance", 0, 10.363199),
    Sketcher.Constraint("DistanceX", 0, 2, 3, 2, 4.357201),
    Sketcher.Constraint("DistanceX", 0, 2, -1, 1, 25.646651),
    Sketcher.Constraint("DistanceY", 0, 2, -1, 1, 58.350171),
])
pad23 = body23.newObject("PartDesign::Pad", "Pad022")
pad23.Profile = sketch23
pad23.Length = 40
body24 = doc.addObject("PartDesign::Body", "Body023")

# Sketch on XY plane
sketch24 = body24.newObject("Sketcher::SketchObject", "Sketch023")
sketch24.AttachmentSupport = (doc.getObject("XY_Plane023"), [""])
sketch24.MapMode = "FlatFace"
sketch24.AttachmentOffset = App.Placement(V(0, 0, -20), App.Rotation())
sketch24.addGeometry([
    Part.LineSegment(V(-17.9, -61.6, 0), V(-20.2, -68.9, 0)),
    Part.LineSegment(V(-20.2, -68.9, 0), V(-17, -69.8, 0)),
    Part.LineSegment(V(-17, -69.8, 0), V(-15.3, -62.3, 0)),
    Part.LineSegment(V(-15.3, -62.3, 0), V(-17.9, -61.6, 0)),
], False)
sketch24.addConstraint([
    Sketcher.Constraint("Coincident", 0, 2, 1, 1),
    Sketcher.Constraint("Coincident", 1, 2, 2, 1),
    Sketcher.Constraint("Coincident", 2, 2, 3, 1),
    Sketcher.Constraint("Coincident", 3, 2, 0, 1),
    Sketcher.Constraint("Parallel", 1, 3),
    Sketcher.Constraint("Equal", 0, 2),
    Sketcher.Constraint("Angle", 1, Q("-15 deg")),
    Sketcher.Constraint("DistanceX", 0, 2, 1, 2, 3.26),
    Sketcher.Constraint("DistanceY", 0, 2, 3, 2, 7.360701),
    Sketcher.Constraint("DistanceX", 0, 2, -1, 1, 20.217189),
    Sketcher.Constraint("DistanceY", 1, 2, -1, 1, 69.805092),
    Sketcher.Constraint("DistanceX", 3, 2, 2, 2, 2.636538),
])
pad24 = body24.newObject("PartDesign::Pad", "Pad023")
pad24.Profile = sketch24
pad24.Length = 40
body25 = doc.addObject("PartDesign::Body", "Body024")

# Sketch on XY plane
sketch25 = body25.newObject("Sketcher::SketchObject", "Sketch024")
sketch25.AttachmentSupport = (doc.getObject("XY_Plane024"), [""])
sketch25.MapMode = "FlatFace"
sketch25.AttachmentOffset = App.Placement(V(0, 0, -20), App.Rotation())
sketch25.addGeometry([
    Part.LineSegment(V(12.9, -51.8, 0), V(15.2, -61.9, 0)),
    Part.LineSegment(V(15.2, -61.9, 0), V(17.8, -61.2, 0)),
    Part.LineSegment(V(17.8, -61.2, 0), V(14.7, -51.3, 0)),
    Part.LineSegment(V(14.7, -51.3, 0), V(12.9, -51.8, 0)),
], False)
sketch25.addConstraint([
    Sketcher.Constraint("Coincident", 0, 2, 1, 1),
    Sketcher.Constraint("Coincident", 1, 2, 2, 1),
    Sketcher.Constraint("Coincident", 2, 2, 3, 1),
    Sketcher.Constraint("Coincident", 3, 2, 0, 1),
    Sketcher.Constraint("Parallel", 1, 3),
    Sketcher.Constraint("Equal", 0, 2),
    Sketcher.Constraint("Angle", 1, Q("15 deg")),
    Sketcher.Constraint("Distance", 3, 1.875),
    Sketcher.Constraint("Distance", 0, 10.363199),
    Sketcher.Constraint("DistanceX", 3, 2, 0, 2, 2.267199),
    Sketcher.Constraint("DistanceX", -1, 1, 2, 2, 14.718389),
    Sketcher.Constraint("DistanceY", 3, 2, -1, 1, 51.792838),
])
pad25 = body25.newObject("PartDesign::Pad", "Pad024")
pad25.Profile = sketch25
pad25.Length = 40
body26 = doc.addObject("PartDesign::Body", "Body025")

# Sketch on XY plane
sketch26 = body26.newObject("Sketcher::SketchObject", "Sketch025")
sketch26.AttachmentSupport = (doc.getObject("XY_Plane025"), [""])
sketch26.MapMode = "FlatFace"
sketch26.AttachmentOffset = App.Placement(V(0, 0, -20), App.Rotation())
sketch26.addGeometry([
    Part.LineSegment(V(23.3, -59.8, 0), V(25.9, -67, 0)),
    Part.LineSegment(V(25.9, -67, 0), V(29, -65.7, 0)),
    Part.LineSegment(V(29, -65.7, 0), V(25.8, -58.7, 0)),
    Part.LineSegment(V(25.8, -58.7, 0), V(23.3, -59.8, 0)),
], False)
sketch26.addConstraint([
    Sketcher.Constraint("Coincident", 0, 2, 1, 1),
    Sketcher.Constraint("Coincident", 1, 2, 2, 1),
    Sketcher.Constraint("Coincident", 2, 2, 3, 1),
    Sketcher.Constraint("Coincident", 3, 2, 0, 1),
    Sketcher.Constraint("Parallel", 1, 3),
    Sketcher.Constraint("Equal", 0, 2),
    Sketcher.Constraint("Angle", 1, Q("22.5 deg")),
    Sketcher.Constraint("Distance", 1, 3.375),
    Sketcher.Constraint("DistanceX", -1, 1, 0, 2, 25.923511),
    Sketcher.Constraint("DistanceX", 2, 2, 1, 2, 3.247438),
    Sketcher.Constraint("DistanceY", 0, 2, 2, 2, 8.288239),
    Sketcher.Constraint("DistanceY", 0, 2, -1, 1, 66.994542),
])
pad26 = body26.newObject("PartDesign::Pad", "Pad025")
pad26.Profile = sketch26
pad26.Length = 40
body27 = doc.addObject("PartDesign::Body", "Body026")

# Sketch on XY plane
sketch27 = body27.newObject("Sketcher::SketchObject", "Sketch026")
sketch27.AttachmentSupport = (doc.getObject("XY_Plane026"), [""])
sketch27.MapMode = "FlatFace"
sketch27.AttachmentOffset = App.Placement(V(0, 0, -20), App.Rotation())
sketch27.addGeometry([
    Part.LineSegment(V(19.6, -49.7, 0), V(23.1, -59.4, 0)),
    Part.LineSegment(V(23.1, -59.4, 0), V(25.6, -58.4, 0)),
    Part.LineSegment(V(25.6, -58.4, 0), V(21.3, -48.9, 0)),
    Part.LineSegment(V(21.3, -48.9, 0), V(19.6, -49.7, 0)),
], False)
sketch27.addConstraint([
    Sketcher.Constraint("Coincident", 0, 2, 1, 1),
    Sketcher.Constraint("Coincident", 1, 2, 2, 1),
    Sketcher.Constraint("Coincident", 2, 2, 3, 1),
    Sketcher.Constraint("Coincident", 3, 2, 0, 1),
    Sketcher.Constraint("Parallel", 1, 3),
    Sketcher.Constraint("Equal", 0, 2),
    Sketcher.Constraint("Angle", 1, Q("22.5 deg")),
    Sketcher.Constraint("Distance", 3, 1.875),
    Sketcher.Constraint("Distance", 0, 10.363199),
    Sketcher.Constraint("DistanceX", 2, 2, 1, 2, 4.357201),
    Sketcher.Constraint("DistanceX", -1, 1, 0, 2, 23.12488),
    Sketcher.Constraint("DistanceY", 1, 2, -1, 1, 58.350171),
])
pad27 = body27.newObject("PartDesign::Pad", "Pad026")
pad27.Profile = sketch27
pad27.Length = 40
body28 = doc.addObject("PartDesign::Body", "Body027")

# Sketch on XY plane
sketch28 = body28.newObject("Sketcher::SketchObject", "Sketch027")
sketch28.AttachmentSupport = (doc.getObject("XY_Plane027"), [""])
sketch28.MapMode = "FlatFace"
sketch28.AttachmentOffset = App.Placement(V(0, 0, -20), App.Rotation())
sketch28.addGeometry([
    Part.LineSegment(V(30.9, -56.2, 0), V(34.4, -63, 0)),
    Part.LineSegment(V(34.4, -63, 0), V(37.4, -61.4, 0)),
    Part.LineSegment(V(37.4, -61.4, 0), V(33.2, -54.8, 0)),
    Part.LineSegment(V(33.2, -54.8, 0), V(30.9, -56.2, 0)),
], False)
sketch28.addConstraint([
    Sketcher.Constraint("Coincident", 0, 2, 1, 1),
    Sketcher.Constraint("Coincident", 1, 2, 2, 1),
    Sketcher.Constraint("Coincident", 2, 2, 3, 1),
    Sketcher.Constraint("Coincident", 3, 2, 0, 1),
    Sketcher.Constraint("Parallel", 1, 3),
    Sketcher.Constraint("Equal", 0, 2),
    Sketcher.Constraint("Angle", 1, Q("30 deg")),
    Sketcher.Constraint("Distance", 1, 3.375),
    Sketcher.Constraint("DistanceX", -1, 1, 1, 2, 37.36911),
    Sketcher.Constraint("DistanceY", 3, 2, -1, 1, 56.202021),
    Sketcher.Constraint("DistanceY", 1, 2, 2, 2, 6.51295),
    Sketcher.Constraint("DistanceX", 2, 2, 0, 2, 1.210071),
])
pad28 = body28.newObject("PartDesign::Pad", "Pad027")
pad28.Profile = sketch28
pad28.Length = 40
body29 = doc.addObject("PartDesign::Body", "Body028")

# Sketch on XY plane
sketch29 = body29.newObject("Sketcher::SketchObject", "Sketch028")
sketch29.AttachmentSupport = (doc.getObject("XY_Plane028"), [""])
sketch29.MapMode = "FlatFace"
sketch29.AttachmentOffset = App.Placement(V(0, 0, -20), App.Rotation())
sketch29.addGeometry([
    Part.LineSegment(V(45.7, -27.5, 0), V(54.5, -33, 0)),
    Part.LineSegment(V(54.5, -33, 0), V(55.9, -30.7, 0)),
    Part.LineSegment(V(55.9, -30.7, 0), V(46.7, -25.9, 0)),
    Part.LineSegment(V(46.7, -25.9, 0), V(45.7, -27.5, 0)),
], False)
sketch29.addConstraint([
    Sketcher.Constraint("Coincident", 0, 2, 1, 1),
    Sketcher.Constraint("Coincident", 1, 2, 2, 1),
    Sketcher.Constraint("Coincident", 2, 2, 3, 1),
    Sketcher.Constraint("Coincident", 3, 2, 0, 1),
    Sketcher.Constraint("Parallel", 1, 3),
    Sketcher.Constraint("Equal", 0, 2),
    Sketcher.Constraint("Angle", 1, Q("60 deg")),
    Sketcher.Constraint("Distance", 3, 1.875),
    Sketcher.Constraint("Distance", 0, 10.363199),
    Sketcher.Constraint("DistanceX", 2, 2, 1, 2, 9.180799),
    Sketcher.Constraint("DistanceX", -1, 1, 1, 2, 55.86819),
    Sketcher.Constraint("DistanceY", 1, 2, -1, 1, 30.679611),
])
pad29 = body29.newObject("PartDesign::Pad", "Pad028")
pad29.Profile = sketch29
pad29.Length = 40
body30 = doc.addObject("PartDesign::Body", "Body029")

# Sketch on XY plane
sketch30 = body30.newObject("Sketcher::SketchObject", "Sketch029")
sketch30.AttachmentSupport = (doc.getObject("XY_Plane029"), [""])
sketch30.MapMode = "FlatFace"
sketch30.AttachmentOffset = App.Placement(V(0, 0, -20), App.Rotation())
sketch30.addGeometry([
    Part.LineSegment(V(58.7, -25.8, 0), V(65.7, -29, 0)),
    Part.LineSegment(V(65.7, -29, 0), V(67, -25.9, 0)),
    Part.LineSegment(V(67, -25.9, 0), V(59.8, -23.3, 0)),
    Part.LineSegment(V(59.8, -23.3, 0), V(58.7, -25.8, 0)),
], False)
sketch30.addConstraint([
    Sketcher.Constraint("Coincident", 0, 2, 1, 1),
    Sketcher.Constraint("Coincident", 1, 2, 2, 1),
    Sketcher.Constraint("Coincident", 2, 2, 3, 1),
    Sketcher.Constraint("Coincident", 3, 2, 0, 1),
    Sketcher.Constraint("Parallel", 1, 3),
    Sketcher.Constraint("Equal", 0, 2),
    Sketcher.Constraint("Angle", 1, Q("67.5 deg")),
    Sketcher.Constraint("Distance", 1, 3.375),
    Sketcher.Constraint("DistanceY", 1, 2, -1, 1, 25.923511),
    Sketcher.Constraint("DistanceX", 2, 2, 0, 2, 5.952131),
    Sketcher.Constraint("DistanceY", 0, 2, 2, 2, 5.76921),
    Sketcher.Constraint("DistanceX", -1, 1, 0, 2, 65.702986),
])
pad30 = body30.newObject("PartDesign::Pad", "Pad029")
pad30.Profile = sketch30
pad30.Length = 40
body31 = doc.addObject("PartDesign::Body", "Body030")

# Sketch on XY plane
sketch31 = body31.newObject("Sketcher::SketchObject", "Sketch030")
sketch31.AttachmentSupport = (doc.getObject("XY_Plane030"), [""])
sketch31.MapMode = "FlatFace"
sketch31.AttachmentOffset = App.Placement(V(0, 0, -20), App.Rotation())
sketch31.addGeometry([
    Part.LineSegment(V(48.9, -21.3, 0), V(58.4, -25.6, 0)),
    Part.LineSegment(V(58.4, -25.6, 0), V(59.4, -23.1, 0)),
    Part.LineSegment(V(59.4, -23.1, 0), V(49.7, -19.6, 0)),
    Part.LineSegment(V(49.7, -19.6, 0), V(48.9, -21.3, 0)),
], False)
sketch31.addConstraint([
    Sketcher.Constraint("Coincident", 0, 2, 1, 1),
    Sketcher.Constraint("Coincident", 1, 2, 2, 1),
    Sketcher.Constraint("Coincident", 2, 2, 3, 1),
    Sketcher.Constraint("Coincident", 3, 2, 0, 1),
    Sketcher.Constraint("Parallel", 1, 3),
    Sketcher.Constraint("Equal", 0, 2),
    Sketcher.Constraint("Angle", 1, Q("67.5 deg")),
    Sketcher.Constraint("Distance", 3, 1.875),
    Sketcher.Constraint("Distance", 0, 10.363199),
    Sketcher.Constraint("DistanceY", 0, 2, 3, 2, 4.357201),
    Sketcher.Constraint("DistanceX", -1, 1, 0, 2, 58.350171),
    Sketcher.Constraint("DistanceY", 0, 2, -1, 1, 25.646651),
])
pad31 = body31.newObject("PartDesign::Pad", "Pad030")
pad31.Profile = sketch31
pad31.Length = 40
body32 = doc.addObject("PartDesign::Body", "Body031")

# Sketch on XY plane
sketch32 = body32.newObject("Sketcher::SketchObject", "Sketch031")
sketch32.AttachmentSupport = (doc.getObject("XY_Plane031"), [""])
sketch32.MapMode = "FlatFace"
sketch32.AttachmentOffset = App.Placement(V(0, 0, -20), App.Rotation())
sketch32.addGeometry([
    Part.LineSegment(V(61.6, -17.9, 0), V(68.9, -20.2, 0)),
    Part.LineSegment(V(68.9, -20.2, 0), V(69.8, -17, 0)),
    Part.LineSegment(V(69.8, -17, 0), V(62.3, -15.3, 0)),
    Part.LineSegment(V(62.3, -15.3, 0), V(61.6, -17.9, 0)),
], False)
sketch32.addConstraint([
    Sketcher.Constraint("Coincident", 0, 2, 1, 1),
    Sketcher.Constraint("Coincident", 1, 2, 2, 1),
    Sketcher.Constraint("Coincident", 2, 2, 3, 1),
    Sketcher.Constraint("Coincident", 3, 2, 0, 1),
    Sketcher.Constraint("Parallel", 1, 3),
    Sketcher.Constraint("Equal", 0, 2),
    Sketcher.Constraint("Angle", 1, Q("75 deg")),
    Sketcher.Constraint("DistanceY", 0, 2, 1, 2, 3.26),
    Sketcher.Constraint("DistanceX", 3, 2, 0, 2, 7.360701),
    Sketcher.Constraint("DistanceY", 0, 2, -1, 1, 20.217189),
    Sketcher.Constraint("DistanceX", -1, 1, 1, 2, 69.805092),
    Sketcher.Constraint("DistanceX", 3, 2, 2, 2, 0.706458),
])
pad32 = body32.newObject("PartDesign::Pad", "Pad031")
pad32.Profile = sketch32
pad32.Length = 40

doc.recompute()
